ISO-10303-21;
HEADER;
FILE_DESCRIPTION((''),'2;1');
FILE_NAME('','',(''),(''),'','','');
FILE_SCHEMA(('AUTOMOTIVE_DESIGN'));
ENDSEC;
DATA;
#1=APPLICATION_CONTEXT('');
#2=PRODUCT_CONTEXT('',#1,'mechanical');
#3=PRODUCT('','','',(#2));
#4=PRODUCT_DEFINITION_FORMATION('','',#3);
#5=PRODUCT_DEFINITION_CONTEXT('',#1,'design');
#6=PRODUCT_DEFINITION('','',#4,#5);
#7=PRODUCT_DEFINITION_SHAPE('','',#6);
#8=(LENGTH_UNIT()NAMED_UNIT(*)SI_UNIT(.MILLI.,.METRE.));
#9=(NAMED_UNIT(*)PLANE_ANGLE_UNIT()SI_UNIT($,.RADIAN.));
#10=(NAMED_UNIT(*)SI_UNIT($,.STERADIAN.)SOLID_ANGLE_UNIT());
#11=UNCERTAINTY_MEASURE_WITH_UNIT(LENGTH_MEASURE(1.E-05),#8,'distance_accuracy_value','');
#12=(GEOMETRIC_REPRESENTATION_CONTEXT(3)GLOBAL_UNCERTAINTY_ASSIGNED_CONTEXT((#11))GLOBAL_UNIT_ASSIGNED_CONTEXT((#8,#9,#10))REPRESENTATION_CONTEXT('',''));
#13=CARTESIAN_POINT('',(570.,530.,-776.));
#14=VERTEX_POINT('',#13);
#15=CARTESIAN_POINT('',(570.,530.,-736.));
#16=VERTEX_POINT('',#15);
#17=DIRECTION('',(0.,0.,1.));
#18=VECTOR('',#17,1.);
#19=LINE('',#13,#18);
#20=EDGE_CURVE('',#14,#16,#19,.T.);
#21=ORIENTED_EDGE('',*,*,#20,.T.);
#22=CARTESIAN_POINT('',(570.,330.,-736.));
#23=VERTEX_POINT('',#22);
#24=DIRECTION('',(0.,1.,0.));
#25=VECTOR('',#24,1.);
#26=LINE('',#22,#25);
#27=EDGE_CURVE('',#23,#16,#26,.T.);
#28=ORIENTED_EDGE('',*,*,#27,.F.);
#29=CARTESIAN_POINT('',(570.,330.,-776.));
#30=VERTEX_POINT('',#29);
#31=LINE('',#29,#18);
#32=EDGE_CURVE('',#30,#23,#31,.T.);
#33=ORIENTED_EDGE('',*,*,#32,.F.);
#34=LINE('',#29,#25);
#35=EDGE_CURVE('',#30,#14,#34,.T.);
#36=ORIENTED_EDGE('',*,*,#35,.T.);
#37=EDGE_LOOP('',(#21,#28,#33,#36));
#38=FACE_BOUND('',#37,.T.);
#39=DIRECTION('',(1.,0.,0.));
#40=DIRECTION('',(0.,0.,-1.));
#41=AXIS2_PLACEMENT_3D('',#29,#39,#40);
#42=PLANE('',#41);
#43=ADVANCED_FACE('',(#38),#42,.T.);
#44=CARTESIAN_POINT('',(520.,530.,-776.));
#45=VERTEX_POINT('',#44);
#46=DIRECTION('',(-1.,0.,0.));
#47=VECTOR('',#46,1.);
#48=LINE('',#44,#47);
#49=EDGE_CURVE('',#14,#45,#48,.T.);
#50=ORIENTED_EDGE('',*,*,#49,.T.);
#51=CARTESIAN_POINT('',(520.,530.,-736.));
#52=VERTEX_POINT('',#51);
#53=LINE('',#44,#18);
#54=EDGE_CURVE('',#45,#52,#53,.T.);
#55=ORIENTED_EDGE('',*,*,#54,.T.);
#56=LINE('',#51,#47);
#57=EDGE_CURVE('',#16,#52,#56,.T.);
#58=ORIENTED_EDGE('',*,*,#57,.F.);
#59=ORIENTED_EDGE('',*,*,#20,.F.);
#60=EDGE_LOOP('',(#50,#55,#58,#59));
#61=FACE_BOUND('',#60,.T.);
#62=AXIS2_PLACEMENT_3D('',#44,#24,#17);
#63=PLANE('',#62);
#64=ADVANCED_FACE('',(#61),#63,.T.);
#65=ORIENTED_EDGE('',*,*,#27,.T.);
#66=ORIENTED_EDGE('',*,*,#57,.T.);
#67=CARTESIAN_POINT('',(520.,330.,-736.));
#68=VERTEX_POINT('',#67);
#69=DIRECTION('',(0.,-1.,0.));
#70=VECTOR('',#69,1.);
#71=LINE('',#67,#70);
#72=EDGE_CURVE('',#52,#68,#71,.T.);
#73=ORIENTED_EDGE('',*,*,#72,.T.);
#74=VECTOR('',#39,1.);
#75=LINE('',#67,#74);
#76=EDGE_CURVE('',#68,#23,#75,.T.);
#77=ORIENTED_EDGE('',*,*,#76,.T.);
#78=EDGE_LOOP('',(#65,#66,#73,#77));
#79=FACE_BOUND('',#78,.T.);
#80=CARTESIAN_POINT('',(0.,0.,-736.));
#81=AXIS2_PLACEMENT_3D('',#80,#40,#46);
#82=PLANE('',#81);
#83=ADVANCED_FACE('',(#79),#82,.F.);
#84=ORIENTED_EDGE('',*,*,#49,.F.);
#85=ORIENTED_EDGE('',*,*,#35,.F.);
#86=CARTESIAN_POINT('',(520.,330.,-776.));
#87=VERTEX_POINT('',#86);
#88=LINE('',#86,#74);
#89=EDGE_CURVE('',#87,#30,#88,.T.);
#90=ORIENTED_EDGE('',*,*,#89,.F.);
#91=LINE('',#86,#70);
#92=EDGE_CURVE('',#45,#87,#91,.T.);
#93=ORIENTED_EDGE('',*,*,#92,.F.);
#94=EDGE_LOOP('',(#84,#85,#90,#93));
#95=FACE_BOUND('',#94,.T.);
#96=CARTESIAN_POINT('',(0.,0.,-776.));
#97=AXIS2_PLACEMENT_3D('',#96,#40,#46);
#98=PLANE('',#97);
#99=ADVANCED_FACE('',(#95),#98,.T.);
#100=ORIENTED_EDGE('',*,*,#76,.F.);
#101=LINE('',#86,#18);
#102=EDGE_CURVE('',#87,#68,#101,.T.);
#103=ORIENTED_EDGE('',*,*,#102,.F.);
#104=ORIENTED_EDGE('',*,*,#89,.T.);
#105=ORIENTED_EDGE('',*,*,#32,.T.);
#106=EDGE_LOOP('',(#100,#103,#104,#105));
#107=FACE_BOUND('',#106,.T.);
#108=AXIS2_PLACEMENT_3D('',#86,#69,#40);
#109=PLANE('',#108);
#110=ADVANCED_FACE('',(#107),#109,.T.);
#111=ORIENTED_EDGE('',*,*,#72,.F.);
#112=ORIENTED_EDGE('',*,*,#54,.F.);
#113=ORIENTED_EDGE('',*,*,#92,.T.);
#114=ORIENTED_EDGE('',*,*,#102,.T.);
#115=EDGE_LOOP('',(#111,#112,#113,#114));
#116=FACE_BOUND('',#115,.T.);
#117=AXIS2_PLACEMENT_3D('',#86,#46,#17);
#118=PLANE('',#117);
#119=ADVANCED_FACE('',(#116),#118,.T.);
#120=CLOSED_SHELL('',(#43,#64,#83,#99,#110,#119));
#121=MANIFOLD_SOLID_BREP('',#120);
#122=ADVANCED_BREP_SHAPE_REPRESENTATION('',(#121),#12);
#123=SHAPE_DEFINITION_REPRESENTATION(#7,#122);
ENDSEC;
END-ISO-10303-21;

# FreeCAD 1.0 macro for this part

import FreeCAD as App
import Part
import Sketcher

V = App.Vector


def add_polygon(sketch, points):
    """Adds a closed chain of lines whose ends are joined by coincident constraints."""
    first, n = sketch.GeometryCount, len(points)
    for a, b in zip(points, points[1:] + points[:1]):
        sketch.addGeometry(Part.LineSegment(App.Vector(*a, 0), App.Vector(*b, 0)), False)
    for i in range(n):
        sketch.addConstraint(Sketcher.Constraint("Coincident", first + i, 2, first + (i + 1) % n, 1))

doc = App.newDocument("Part")
body = doc.addObject("PartDesign::Body", "Body")

# Sketch on XY plane
sketch1 = body.newObject("Sketcher::SketchObject", "Sketch")
sketch1.AttachmentSupport = (doc.getObject("XY_Plane"), [""])
sketch1.MapMode = "FlatFace"
sketch1.AttachmentOffset = App.Placement(V(0, 0, -736), App.Rotation())
add_polygon(sketch1, [(520, 530), (520, 330), (570, 330), (570, 530)])  # lines 0-3
sketch1.addConstraint(Sketcher.Constraint("Vertical", 0))
sketch1.addConstraint(Sketcher.Constraint("Horizontal", 1))
sketch1.addConstraint(Sketcher.Constraint("Vertical", 2))
sketch1.addConstraint(Sketcher.Constraint("Horizontal", 3))
sketch1.addConstraint(Sketcher.Constraint("DistanceX", 1, 1, 1, 2, 50.0))
sketch1.addConstraint(Sketcher.Constraint("DistanceY", 0, 2, 0, 1, 200.0))
sketch1.addConstraint(Sketcher.Constraint("DistanceX", -1, 1, 0, 2, 520.0))
sketch1.addConstraint(Sketcher.Constraint("DistanceY", -1, 1, 0, 2, 330.0))
pad1 = body.newObject("PartDesign::Pad", "Pad")
pad1.Profile = sketch1
pad1.Length = 40
pad1.Reversed = True

doc.recompute()
